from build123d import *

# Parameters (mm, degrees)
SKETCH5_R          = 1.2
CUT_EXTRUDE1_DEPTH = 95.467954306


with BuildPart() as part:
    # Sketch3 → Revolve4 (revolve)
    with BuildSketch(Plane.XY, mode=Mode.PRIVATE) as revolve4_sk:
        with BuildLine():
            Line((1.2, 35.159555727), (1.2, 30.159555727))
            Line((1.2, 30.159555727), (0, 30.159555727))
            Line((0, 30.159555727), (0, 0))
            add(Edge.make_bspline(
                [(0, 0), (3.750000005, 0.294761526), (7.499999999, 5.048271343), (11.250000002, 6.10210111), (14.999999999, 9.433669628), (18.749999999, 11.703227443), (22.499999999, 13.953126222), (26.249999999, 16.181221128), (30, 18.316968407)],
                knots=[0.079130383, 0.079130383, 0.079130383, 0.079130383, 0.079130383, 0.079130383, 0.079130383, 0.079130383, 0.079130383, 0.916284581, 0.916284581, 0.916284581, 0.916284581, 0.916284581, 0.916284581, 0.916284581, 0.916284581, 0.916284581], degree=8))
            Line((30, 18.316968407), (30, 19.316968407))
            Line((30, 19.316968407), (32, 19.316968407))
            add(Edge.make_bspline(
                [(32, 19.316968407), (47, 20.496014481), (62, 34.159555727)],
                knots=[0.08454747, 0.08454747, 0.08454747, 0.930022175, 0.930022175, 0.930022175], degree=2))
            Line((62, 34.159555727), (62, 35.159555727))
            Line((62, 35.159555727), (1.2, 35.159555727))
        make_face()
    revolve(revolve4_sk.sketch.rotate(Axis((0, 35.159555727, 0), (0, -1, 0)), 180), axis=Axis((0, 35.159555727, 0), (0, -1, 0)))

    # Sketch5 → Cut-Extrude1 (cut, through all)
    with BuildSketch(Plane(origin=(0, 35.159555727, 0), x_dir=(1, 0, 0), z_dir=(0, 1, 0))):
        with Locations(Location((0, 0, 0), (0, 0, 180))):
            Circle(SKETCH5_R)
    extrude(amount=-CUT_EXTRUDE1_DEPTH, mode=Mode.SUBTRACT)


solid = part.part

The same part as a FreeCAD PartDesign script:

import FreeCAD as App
import Part
import Sketcher

V = App.Vector
Q = App.Units.Quantity

doc = App.newDocument("Part")
body = doc.addObject("PartDesign::Body", "Body")

sketch1 = body.newObject("Sketcher::SketchObject", "Sketch")
sketch1.AttachmentSupport = (doc.getObject("XY_Plane"), [""])
sketch1.MapMode = "FlatFace"
sketch1.addGeometry(Part.LineSegment(V(1.2, 35.159556, 0), V(1.2, 30.159556, 0)), False)
sketch1.addGeometry(Part.LineSegment(V(1.2, 30.159556, 0), V(0, 30.159556, 0)), False)
sketch1.addGeometry(Part.LineSegment(V(0, 30.159556, 0), V(0, 0, 0)), False)
sketch1.addGeometry(Part.BSplineCurve([V(0, 0, 0), V(3.75, 0.294762, 0), V(7.5, 5.048271, 0), V(11.25, 6.102101, 0), V(15, 9.43367, 0), V(18.75, 11.703227, 0), V(22.5, 13.953126, 0), V(26.25, 16.181221, 0), V(30, 18.316968, 0)], [9, 9], [0.079130383, 0.916284581], False, 8, [1, 1, 1, 1, 1, 1, 1, 1, 1], False), False)
sketch1.addGeometry(Part.LineSegment(V(30, 18.316968, 0), V(30, 19.316968, 0)), False)
sketch1.addGeometry(Part.LineSegment(V(30, 19.316968, 0), V(32, 19.316968, 0)), False)
sketch1.addGeometry(Part.BSplineCurve([V(32, 19.316968, 0), V(47, 20.496014, 0), V(62, 34.159556, 0)], [3, 3], [0.08454747, 0.930022175], False, 2, [1, 1, 1], False), False)
sketch1.addGeometry(Part.LineSegment(V(62, 34.159556, 0), V(62, 35.159556, 0)), False)
sketch1.addGeometry(Part.LineSegment(V(62, 35.159556, 0), V(1.2, 35.159556, 0)), False)
sketch1.addConstraint(Sketcher.Constraint("Block", 3))
sketch1.addConstraint(Sketcher.Constraint("Block", 6))
sketch1.addConstraint(Sketcher.Constraint("Coincident", 0, 2, 1, 1))
sketch1.addConstraint(Sketcher.Constraint("Coincident", 1, 2, 2, 1))
sketch1.addConstraint(Sketcher.Constraint("Coincident", 2, 2, 3, 1))
sketch1.addConstraint(Sketcher.Constraint("Coincident", 3, 2, 4, 1))
sketch1.addConstraint(Sketcher.Constraint("Coincident", 4, 2, 5, 1))
sketch1.addConstraint(Sketcher.Constraint("Coincident", 5, 2, 6, 1))
sketch1.addConstraint(Sketcher.Constraint("Coincident", 6, 2, 7, 1))
sketch1.addConstraint(Sketcher.Constraint("Coincident", 7, 2, 8, 1))
sketch1.addConstraint(Sketcher.Constraint("Coincident", 8, 2, 0, 1))
sketch1.addConstraint(Sketcher.Constraint("Vertical", 0))
sketch1.addConstraint(Sketcher.Constraint("Horizontal", 1))
sketch1.addConstraint(Sketcher.Constraint("Vertical", 2))
sketch1.addConstraint(Sketcher.Constraint("Vertical", 4))
sketch1.addConstraint(Sketcher.Constraint("Horizontal", 5))
sketch1.addConstraint(Sketcher.Constraint("Vertical", 7))
sketch1.addConstraint(Sketcher.Constraint("Horizontal", 8))
sketch1.addConstraint(Sketcher.Constraint("DistanceY", 0, 2, 0, 1, Q("5 mm")))
sketch1.addConstraint(Sketcher.Constraint("DistanceY", 7, 1, 7, 2, Q("1 mm")))
sketch1.addConstraint(Sketcher.Constraint("DistanceX", 1, 2, 1, 1, Q("1.2 mm")))
revolution = body.newObject("PartDesign::Revolution", "Revolution")
revolution.Profile = sketch1
revolution.ReferenceAxis = (sketch1, ["V_Axis"])
revolution.Angle = 360

sketch2 = body.newObject("Sketcher::SketchObject", "Sketch001")
sketch2.AttachmentSupport = (doc.getObject("XZ_Plane"), [""])
sketch2.MapMode = "FlatFace"
sketch2.AttachmentOffset = App.Placement(V(0, 0, -35.159556), App.Rotation())
sketch2.addGeometry(Part.Circle(V(0, 0, 0), V(0, 0, 1), 1.2), False)
sketch2.addConstraint(Sketcher.Constraint("Coincident", 0, 3, -1, 1))
sketch2.addConstraint(Sketcher.Constraint("Diameter", 0, Q("2.4 mm")))
pocket1 = body.newObject("PartDesign::Pocket", "Pocket")
pocket1.Profile = sketch2
pocket1.Type = "ThroughAll"
pocket1.Reversed = True

doc.recompute()
